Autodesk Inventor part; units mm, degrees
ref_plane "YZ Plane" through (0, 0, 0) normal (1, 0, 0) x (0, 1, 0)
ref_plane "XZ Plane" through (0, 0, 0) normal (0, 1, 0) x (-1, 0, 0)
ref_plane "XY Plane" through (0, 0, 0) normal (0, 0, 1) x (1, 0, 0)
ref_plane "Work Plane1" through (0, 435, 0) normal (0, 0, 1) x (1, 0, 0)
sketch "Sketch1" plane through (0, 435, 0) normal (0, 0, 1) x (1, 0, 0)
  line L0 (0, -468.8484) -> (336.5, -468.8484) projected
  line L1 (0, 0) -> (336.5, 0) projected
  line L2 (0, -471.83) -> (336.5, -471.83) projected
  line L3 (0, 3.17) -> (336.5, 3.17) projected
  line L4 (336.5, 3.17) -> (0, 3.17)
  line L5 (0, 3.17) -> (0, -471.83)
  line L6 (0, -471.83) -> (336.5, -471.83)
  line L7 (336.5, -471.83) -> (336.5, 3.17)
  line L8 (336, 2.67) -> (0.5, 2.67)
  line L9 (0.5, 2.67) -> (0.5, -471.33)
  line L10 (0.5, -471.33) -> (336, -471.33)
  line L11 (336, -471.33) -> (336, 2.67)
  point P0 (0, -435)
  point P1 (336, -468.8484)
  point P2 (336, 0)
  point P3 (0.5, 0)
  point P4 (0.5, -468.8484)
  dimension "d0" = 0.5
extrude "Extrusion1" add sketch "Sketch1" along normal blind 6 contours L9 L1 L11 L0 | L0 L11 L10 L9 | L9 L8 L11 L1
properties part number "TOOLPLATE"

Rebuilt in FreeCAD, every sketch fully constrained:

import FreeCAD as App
import Part
import Sketcher

V = App.Vector
Q = App.Units.Quantity


def add_polygon(sketch, points):
    """Adds a closed chain of lines whose ends are joined by coincident constraints."""
    first, n = sketch.GeometryCount, len(points)
    for a, b in zip(points, points[1:] + points[:1]):
        sketch.addGeometry(Part.LineSegment(App.Vector(*a, 0), App.Vector(*b, 0)), False)
    for i in range(n):
        sketch.addConstraint(Sketcher.Constraint("Coincident", first + i, 2, first + (i + 1) % n, 1))

doc = App.newDocument("Part")
body = doc.addObject("PartDesign::Body", "Body")

# Sketch on XY plane
sketch1 = doc.addObject("Sketcher::SketchObject", "Sketch")
body.addObject(sketch1)
sketch1.AttachmentSupport = (doc.XY_Plane, [""])
sketch1.MapMode = "FlatFace"
add_polygon(sketch1, [(0, -36), (336, -36), (336, 438), (0, 438)])  # lines 0-3
sketch1.addConstraint(Sketcher.Constraint("Horizontal", 0))
sketch1.addConstraint(Sketcher.Constraint("Vertical", 1))
sketch1.addConstraint(Sketcher.Constraint("Horizontal", 2))
sketch1.addConstraint(Sketcher.Constraint("Vertical", 3))
sketch1.addConstraint(Sketcher.Constraint("DistanceX", -1, 1, 2, 2, Q("0.5 mm")))
sketch1.addConstraint(Sketcher.Constraint("DistanceY", 1, 1, 1, 2, Q("474 mm")))
sketch1.addConstraint(Sketcher.Constraint("DistanceX", 0, 1, 0, 2, Q("335.5 mm")))
sketch1.addConstraint(Sketcher.Constraint("DistanceY", 0, 2, -1, 1, Q("36.33 mm")))
pad1 = doc.addObject("PartDesign::Pad", "Pad")
body.addObject(pad1)
pad1.Profile = sketch1
pad1.Length = 6

doc.recompute()
